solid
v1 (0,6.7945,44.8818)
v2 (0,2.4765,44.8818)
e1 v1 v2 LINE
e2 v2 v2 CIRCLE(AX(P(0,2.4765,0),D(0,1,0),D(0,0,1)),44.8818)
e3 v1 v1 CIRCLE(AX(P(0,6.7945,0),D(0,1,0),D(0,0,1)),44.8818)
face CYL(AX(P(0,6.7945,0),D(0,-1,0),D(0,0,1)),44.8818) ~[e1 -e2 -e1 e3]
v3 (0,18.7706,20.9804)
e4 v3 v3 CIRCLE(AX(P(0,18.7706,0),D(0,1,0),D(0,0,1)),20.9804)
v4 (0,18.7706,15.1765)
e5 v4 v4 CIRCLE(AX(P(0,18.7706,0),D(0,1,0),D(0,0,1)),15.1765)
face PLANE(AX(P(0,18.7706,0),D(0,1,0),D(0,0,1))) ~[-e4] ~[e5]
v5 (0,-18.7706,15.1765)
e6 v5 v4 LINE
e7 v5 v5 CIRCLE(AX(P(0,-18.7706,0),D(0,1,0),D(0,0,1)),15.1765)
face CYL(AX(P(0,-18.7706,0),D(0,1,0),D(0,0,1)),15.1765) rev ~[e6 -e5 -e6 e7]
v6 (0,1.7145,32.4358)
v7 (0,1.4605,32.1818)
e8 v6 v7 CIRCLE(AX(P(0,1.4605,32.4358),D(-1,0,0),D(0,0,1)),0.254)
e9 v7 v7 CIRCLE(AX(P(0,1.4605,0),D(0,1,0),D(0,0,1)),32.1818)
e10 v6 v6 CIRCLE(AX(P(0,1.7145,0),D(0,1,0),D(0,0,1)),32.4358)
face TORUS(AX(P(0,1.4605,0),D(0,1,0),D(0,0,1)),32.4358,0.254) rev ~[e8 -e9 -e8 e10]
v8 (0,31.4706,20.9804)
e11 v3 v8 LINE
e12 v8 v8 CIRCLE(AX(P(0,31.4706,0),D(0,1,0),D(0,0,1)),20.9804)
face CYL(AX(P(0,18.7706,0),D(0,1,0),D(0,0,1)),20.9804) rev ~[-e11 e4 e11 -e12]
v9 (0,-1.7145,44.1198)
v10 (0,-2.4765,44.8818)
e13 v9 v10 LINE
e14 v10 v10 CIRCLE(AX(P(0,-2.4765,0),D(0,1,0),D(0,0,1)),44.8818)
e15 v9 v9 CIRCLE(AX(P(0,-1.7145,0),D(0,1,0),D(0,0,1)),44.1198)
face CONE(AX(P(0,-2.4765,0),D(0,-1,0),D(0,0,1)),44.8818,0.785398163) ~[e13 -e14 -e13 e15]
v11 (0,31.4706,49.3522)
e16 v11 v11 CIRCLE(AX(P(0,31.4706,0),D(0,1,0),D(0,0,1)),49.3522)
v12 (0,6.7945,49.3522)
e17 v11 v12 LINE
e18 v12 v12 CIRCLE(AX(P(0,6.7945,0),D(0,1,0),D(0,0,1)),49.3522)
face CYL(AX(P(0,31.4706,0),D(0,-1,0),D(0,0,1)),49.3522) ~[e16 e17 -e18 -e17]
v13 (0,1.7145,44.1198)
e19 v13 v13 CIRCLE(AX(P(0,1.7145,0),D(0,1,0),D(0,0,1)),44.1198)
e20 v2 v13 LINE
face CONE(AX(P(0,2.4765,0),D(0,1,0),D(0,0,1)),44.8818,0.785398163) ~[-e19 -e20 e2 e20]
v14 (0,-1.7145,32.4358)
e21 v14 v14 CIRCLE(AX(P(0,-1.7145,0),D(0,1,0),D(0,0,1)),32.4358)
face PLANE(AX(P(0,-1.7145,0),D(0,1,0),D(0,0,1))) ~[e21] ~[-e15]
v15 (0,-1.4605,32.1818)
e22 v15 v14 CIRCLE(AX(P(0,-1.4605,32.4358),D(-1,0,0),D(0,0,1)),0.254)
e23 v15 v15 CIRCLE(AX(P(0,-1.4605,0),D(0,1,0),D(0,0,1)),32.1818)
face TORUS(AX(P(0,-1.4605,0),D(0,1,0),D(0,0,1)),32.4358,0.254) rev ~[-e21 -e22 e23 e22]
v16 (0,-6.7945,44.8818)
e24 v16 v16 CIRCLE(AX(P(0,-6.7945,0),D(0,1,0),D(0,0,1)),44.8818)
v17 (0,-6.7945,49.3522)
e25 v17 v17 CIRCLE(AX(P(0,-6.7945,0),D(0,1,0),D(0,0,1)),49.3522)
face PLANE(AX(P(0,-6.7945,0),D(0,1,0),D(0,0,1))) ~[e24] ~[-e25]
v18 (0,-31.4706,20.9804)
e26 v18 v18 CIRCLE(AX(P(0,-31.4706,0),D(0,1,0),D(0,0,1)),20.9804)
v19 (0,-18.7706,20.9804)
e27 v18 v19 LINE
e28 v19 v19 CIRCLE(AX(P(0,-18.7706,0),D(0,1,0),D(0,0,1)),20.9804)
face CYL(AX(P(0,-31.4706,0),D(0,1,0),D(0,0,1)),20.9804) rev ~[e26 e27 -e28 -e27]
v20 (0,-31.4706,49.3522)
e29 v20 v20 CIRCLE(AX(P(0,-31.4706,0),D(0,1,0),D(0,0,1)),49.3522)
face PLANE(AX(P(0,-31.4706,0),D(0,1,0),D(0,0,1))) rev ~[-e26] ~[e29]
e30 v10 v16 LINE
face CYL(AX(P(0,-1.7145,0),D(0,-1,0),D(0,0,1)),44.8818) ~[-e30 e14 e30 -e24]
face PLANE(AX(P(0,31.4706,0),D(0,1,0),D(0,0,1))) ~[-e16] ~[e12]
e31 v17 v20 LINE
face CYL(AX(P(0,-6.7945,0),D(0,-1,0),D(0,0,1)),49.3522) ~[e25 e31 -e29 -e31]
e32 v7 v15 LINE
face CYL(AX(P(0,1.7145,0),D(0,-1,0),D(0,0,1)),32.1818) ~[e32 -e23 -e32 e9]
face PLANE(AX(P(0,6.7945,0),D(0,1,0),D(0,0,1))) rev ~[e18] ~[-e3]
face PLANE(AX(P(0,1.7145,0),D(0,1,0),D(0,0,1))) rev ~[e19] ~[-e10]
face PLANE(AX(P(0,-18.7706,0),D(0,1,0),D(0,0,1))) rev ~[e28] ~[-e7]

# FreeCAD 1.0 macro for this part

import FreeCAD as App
import Part
import Sketcher

V = App.Vector
Q = App.Units.Quantity


def edges_at(feature, points):
    """Names of the edges that pass closest to the given points."""
    edges = feature.Shape.Edges
    near = lambda p: min(range(len(edges)), key=lambda i: edges[i].distToShape(Part.Vertex(*p))[0])
    return sorted({f"Edge{near(p) + 1}" for p in points})


def add_polygon(sketch, points):
    """Adds a closed chain of lines whose ends are joined by coincident constraints."""
    first, n = sketch.GeometryCount, len(points)
    for a, b in zip(points, points[1:] + points[:1]):
        sketch.addGeometry(Part.LineSegment(App.Vector(*a, 0), App.Vector(*b, 0)), False)
    for i in range(n):
        sketch.addConstraint(Sketcher.Constraint("Coincident", first + i, 2, first + (i + 1) % n, 1))

doc = App.newDocument("Part")
body = doc.addObject("PartDesign::Body", "Body")

sketch1 = doc.addObject("Sketcher::SketchObject", "Sketch")
body.addObject(sketch1)
sketch1.AttachmentSupport = (doc.YZ_Plane, [""])
sketch1.MapMode = "FlatFace"
add_polygon(sketch1, [(-18.8, 15.2), (18.8, 15.2), (18.8, 21), (31.5, 21), (31.5, 49.4), (6.8, 49.4), (6.8, 44.9), (1.7, 44.9), (1.7, 32.2), (-1.7, 32.2), (-1.7, 44.9), (-6.8, 44.9), (-6.8, 49.4), (-31.5, 49.4), (-31.5, 21), (-18.8, 21)])
sketch1.addConstraint(Sketcher.Constraint("Horizontal", 0))
sketch1.addConstraint(Sketcher.Constraint("Vertical", 1))
sketch1.addConstraint(Sketcher.Constraint("Horizontal", 2))
sketch1.addConstraint(Sketcher.Constraint("Vertical", 3))
sketch1.addConstraint(Sketcher.Constraint("Horizontal", 4))
sketch1.addConstraint(Sketcher.Constraint("Vertical", 5))
sketch1.addConstraint(Sketcher.Constraint("Horizontal", 6))
sketch1.addConstraint(Sketcher.Constraint("Vertical", 7))
sketch1.addConstraint(Sketcher.Constraint("Horizontal", 8))
sketch1.addConstraint(Sketcher.Constraint("Vertical", 9))
sketch1.addConstraint(Sketcher.Constraint("Horizontal", 10))
sketch1.addConstraint(Sketcher.Constraint("Vertical", 11))
sketch1.addConstraint(Sketcher.Constraint("Horizontal", 12))
sketch1.addConstraint(Sketcher.Constraint("Vertical", 13))
sketch1.addConstraint(Sketcher.Constraint("Horizontal", 14))
sketch1.addConstraint(Sketcher.Constraint("Vertical", 15))
sketch1.addConstraint(Sketcher.Constraint("Symmetric", 6, 2, 9, 2, -2))
sketch1.addConstraint(Sketcher.Constraint("Symmetric", 4, 2, 11, 2, -2))
sketch1.addConstraint(Sketcher.Constraint("Symmetric", 2, 2, 13, 2, -2))
sketch1.addConstraint(Sketcher.Constraint("Equal", 2, 14))
sketch1.addConstraint(Sketcher.Constraint("Equal", 14, 7))
sketch1.addConstraint(Sketcher.Constraint("DistanceX", 2, 1, 2, 2, Q("0.5 in")))
sketch1.addConstraint(Sketcher.Constraint("DistanceX", 6, 2, 6, 1, Q("0.2 in")))
sketch1.addConstraint(Sketcher.Constraint("DistanceX", 0, 1, 0, 2, Q("1.478 in")))
sketch1.addConstraint(Sketcher.Constraint("DistanceX", 8, 2, 8, 1, Q("0.135 in")))
sketch1.addConstraint(Sketcher.Constraint("DistanceY", 3, 1, 3, 2, Q("1.117 in")))
sketch1.addConstraint(Sketcher.Constraint("DistanceY", 5, 2, 5, 1, Q("0.176 in")))
sketch1.addConstraint(Sketcher.Constraint("DistanceY", 1, 1, 1, 2, Q("0.2285 in")))
sketch1.addConstraint(Sketcher.Constraint("DistanceY", -1, 1, 1, 2, Q("0.826 in")))
revolution = doc.addObject("PartDesign::Revolution", "Revolution")
body.addObject(revolution)
revolution.Profile = sketch1
revolution.ReferenceAxis = (sketch1, ["H_Axis"])
revolution.Angle = 360
doc.recompute()

chamfer = doc.addObject("PartDesign::Chamfer", "Chamfer")
body.addObject(chamfer)
chamfer.Base = (revolution, edges_at(revolution, [(0, 1.714, -44.882), (0, -1.714, -44.882)]))
chamfer.Size = Q("0.03 in")
doc.recompute()

fillet = doc.addObject("PartDesign::Fillet", "Fillet")
body.addObject(fillet)
fillet.Base = (chamfer, edges_at(chamfer, [(0, -1.714, -32.182), (0, 1.714, -32.182)]))
fillet.Radius = Q("0.01 in")

doc.recompute()
